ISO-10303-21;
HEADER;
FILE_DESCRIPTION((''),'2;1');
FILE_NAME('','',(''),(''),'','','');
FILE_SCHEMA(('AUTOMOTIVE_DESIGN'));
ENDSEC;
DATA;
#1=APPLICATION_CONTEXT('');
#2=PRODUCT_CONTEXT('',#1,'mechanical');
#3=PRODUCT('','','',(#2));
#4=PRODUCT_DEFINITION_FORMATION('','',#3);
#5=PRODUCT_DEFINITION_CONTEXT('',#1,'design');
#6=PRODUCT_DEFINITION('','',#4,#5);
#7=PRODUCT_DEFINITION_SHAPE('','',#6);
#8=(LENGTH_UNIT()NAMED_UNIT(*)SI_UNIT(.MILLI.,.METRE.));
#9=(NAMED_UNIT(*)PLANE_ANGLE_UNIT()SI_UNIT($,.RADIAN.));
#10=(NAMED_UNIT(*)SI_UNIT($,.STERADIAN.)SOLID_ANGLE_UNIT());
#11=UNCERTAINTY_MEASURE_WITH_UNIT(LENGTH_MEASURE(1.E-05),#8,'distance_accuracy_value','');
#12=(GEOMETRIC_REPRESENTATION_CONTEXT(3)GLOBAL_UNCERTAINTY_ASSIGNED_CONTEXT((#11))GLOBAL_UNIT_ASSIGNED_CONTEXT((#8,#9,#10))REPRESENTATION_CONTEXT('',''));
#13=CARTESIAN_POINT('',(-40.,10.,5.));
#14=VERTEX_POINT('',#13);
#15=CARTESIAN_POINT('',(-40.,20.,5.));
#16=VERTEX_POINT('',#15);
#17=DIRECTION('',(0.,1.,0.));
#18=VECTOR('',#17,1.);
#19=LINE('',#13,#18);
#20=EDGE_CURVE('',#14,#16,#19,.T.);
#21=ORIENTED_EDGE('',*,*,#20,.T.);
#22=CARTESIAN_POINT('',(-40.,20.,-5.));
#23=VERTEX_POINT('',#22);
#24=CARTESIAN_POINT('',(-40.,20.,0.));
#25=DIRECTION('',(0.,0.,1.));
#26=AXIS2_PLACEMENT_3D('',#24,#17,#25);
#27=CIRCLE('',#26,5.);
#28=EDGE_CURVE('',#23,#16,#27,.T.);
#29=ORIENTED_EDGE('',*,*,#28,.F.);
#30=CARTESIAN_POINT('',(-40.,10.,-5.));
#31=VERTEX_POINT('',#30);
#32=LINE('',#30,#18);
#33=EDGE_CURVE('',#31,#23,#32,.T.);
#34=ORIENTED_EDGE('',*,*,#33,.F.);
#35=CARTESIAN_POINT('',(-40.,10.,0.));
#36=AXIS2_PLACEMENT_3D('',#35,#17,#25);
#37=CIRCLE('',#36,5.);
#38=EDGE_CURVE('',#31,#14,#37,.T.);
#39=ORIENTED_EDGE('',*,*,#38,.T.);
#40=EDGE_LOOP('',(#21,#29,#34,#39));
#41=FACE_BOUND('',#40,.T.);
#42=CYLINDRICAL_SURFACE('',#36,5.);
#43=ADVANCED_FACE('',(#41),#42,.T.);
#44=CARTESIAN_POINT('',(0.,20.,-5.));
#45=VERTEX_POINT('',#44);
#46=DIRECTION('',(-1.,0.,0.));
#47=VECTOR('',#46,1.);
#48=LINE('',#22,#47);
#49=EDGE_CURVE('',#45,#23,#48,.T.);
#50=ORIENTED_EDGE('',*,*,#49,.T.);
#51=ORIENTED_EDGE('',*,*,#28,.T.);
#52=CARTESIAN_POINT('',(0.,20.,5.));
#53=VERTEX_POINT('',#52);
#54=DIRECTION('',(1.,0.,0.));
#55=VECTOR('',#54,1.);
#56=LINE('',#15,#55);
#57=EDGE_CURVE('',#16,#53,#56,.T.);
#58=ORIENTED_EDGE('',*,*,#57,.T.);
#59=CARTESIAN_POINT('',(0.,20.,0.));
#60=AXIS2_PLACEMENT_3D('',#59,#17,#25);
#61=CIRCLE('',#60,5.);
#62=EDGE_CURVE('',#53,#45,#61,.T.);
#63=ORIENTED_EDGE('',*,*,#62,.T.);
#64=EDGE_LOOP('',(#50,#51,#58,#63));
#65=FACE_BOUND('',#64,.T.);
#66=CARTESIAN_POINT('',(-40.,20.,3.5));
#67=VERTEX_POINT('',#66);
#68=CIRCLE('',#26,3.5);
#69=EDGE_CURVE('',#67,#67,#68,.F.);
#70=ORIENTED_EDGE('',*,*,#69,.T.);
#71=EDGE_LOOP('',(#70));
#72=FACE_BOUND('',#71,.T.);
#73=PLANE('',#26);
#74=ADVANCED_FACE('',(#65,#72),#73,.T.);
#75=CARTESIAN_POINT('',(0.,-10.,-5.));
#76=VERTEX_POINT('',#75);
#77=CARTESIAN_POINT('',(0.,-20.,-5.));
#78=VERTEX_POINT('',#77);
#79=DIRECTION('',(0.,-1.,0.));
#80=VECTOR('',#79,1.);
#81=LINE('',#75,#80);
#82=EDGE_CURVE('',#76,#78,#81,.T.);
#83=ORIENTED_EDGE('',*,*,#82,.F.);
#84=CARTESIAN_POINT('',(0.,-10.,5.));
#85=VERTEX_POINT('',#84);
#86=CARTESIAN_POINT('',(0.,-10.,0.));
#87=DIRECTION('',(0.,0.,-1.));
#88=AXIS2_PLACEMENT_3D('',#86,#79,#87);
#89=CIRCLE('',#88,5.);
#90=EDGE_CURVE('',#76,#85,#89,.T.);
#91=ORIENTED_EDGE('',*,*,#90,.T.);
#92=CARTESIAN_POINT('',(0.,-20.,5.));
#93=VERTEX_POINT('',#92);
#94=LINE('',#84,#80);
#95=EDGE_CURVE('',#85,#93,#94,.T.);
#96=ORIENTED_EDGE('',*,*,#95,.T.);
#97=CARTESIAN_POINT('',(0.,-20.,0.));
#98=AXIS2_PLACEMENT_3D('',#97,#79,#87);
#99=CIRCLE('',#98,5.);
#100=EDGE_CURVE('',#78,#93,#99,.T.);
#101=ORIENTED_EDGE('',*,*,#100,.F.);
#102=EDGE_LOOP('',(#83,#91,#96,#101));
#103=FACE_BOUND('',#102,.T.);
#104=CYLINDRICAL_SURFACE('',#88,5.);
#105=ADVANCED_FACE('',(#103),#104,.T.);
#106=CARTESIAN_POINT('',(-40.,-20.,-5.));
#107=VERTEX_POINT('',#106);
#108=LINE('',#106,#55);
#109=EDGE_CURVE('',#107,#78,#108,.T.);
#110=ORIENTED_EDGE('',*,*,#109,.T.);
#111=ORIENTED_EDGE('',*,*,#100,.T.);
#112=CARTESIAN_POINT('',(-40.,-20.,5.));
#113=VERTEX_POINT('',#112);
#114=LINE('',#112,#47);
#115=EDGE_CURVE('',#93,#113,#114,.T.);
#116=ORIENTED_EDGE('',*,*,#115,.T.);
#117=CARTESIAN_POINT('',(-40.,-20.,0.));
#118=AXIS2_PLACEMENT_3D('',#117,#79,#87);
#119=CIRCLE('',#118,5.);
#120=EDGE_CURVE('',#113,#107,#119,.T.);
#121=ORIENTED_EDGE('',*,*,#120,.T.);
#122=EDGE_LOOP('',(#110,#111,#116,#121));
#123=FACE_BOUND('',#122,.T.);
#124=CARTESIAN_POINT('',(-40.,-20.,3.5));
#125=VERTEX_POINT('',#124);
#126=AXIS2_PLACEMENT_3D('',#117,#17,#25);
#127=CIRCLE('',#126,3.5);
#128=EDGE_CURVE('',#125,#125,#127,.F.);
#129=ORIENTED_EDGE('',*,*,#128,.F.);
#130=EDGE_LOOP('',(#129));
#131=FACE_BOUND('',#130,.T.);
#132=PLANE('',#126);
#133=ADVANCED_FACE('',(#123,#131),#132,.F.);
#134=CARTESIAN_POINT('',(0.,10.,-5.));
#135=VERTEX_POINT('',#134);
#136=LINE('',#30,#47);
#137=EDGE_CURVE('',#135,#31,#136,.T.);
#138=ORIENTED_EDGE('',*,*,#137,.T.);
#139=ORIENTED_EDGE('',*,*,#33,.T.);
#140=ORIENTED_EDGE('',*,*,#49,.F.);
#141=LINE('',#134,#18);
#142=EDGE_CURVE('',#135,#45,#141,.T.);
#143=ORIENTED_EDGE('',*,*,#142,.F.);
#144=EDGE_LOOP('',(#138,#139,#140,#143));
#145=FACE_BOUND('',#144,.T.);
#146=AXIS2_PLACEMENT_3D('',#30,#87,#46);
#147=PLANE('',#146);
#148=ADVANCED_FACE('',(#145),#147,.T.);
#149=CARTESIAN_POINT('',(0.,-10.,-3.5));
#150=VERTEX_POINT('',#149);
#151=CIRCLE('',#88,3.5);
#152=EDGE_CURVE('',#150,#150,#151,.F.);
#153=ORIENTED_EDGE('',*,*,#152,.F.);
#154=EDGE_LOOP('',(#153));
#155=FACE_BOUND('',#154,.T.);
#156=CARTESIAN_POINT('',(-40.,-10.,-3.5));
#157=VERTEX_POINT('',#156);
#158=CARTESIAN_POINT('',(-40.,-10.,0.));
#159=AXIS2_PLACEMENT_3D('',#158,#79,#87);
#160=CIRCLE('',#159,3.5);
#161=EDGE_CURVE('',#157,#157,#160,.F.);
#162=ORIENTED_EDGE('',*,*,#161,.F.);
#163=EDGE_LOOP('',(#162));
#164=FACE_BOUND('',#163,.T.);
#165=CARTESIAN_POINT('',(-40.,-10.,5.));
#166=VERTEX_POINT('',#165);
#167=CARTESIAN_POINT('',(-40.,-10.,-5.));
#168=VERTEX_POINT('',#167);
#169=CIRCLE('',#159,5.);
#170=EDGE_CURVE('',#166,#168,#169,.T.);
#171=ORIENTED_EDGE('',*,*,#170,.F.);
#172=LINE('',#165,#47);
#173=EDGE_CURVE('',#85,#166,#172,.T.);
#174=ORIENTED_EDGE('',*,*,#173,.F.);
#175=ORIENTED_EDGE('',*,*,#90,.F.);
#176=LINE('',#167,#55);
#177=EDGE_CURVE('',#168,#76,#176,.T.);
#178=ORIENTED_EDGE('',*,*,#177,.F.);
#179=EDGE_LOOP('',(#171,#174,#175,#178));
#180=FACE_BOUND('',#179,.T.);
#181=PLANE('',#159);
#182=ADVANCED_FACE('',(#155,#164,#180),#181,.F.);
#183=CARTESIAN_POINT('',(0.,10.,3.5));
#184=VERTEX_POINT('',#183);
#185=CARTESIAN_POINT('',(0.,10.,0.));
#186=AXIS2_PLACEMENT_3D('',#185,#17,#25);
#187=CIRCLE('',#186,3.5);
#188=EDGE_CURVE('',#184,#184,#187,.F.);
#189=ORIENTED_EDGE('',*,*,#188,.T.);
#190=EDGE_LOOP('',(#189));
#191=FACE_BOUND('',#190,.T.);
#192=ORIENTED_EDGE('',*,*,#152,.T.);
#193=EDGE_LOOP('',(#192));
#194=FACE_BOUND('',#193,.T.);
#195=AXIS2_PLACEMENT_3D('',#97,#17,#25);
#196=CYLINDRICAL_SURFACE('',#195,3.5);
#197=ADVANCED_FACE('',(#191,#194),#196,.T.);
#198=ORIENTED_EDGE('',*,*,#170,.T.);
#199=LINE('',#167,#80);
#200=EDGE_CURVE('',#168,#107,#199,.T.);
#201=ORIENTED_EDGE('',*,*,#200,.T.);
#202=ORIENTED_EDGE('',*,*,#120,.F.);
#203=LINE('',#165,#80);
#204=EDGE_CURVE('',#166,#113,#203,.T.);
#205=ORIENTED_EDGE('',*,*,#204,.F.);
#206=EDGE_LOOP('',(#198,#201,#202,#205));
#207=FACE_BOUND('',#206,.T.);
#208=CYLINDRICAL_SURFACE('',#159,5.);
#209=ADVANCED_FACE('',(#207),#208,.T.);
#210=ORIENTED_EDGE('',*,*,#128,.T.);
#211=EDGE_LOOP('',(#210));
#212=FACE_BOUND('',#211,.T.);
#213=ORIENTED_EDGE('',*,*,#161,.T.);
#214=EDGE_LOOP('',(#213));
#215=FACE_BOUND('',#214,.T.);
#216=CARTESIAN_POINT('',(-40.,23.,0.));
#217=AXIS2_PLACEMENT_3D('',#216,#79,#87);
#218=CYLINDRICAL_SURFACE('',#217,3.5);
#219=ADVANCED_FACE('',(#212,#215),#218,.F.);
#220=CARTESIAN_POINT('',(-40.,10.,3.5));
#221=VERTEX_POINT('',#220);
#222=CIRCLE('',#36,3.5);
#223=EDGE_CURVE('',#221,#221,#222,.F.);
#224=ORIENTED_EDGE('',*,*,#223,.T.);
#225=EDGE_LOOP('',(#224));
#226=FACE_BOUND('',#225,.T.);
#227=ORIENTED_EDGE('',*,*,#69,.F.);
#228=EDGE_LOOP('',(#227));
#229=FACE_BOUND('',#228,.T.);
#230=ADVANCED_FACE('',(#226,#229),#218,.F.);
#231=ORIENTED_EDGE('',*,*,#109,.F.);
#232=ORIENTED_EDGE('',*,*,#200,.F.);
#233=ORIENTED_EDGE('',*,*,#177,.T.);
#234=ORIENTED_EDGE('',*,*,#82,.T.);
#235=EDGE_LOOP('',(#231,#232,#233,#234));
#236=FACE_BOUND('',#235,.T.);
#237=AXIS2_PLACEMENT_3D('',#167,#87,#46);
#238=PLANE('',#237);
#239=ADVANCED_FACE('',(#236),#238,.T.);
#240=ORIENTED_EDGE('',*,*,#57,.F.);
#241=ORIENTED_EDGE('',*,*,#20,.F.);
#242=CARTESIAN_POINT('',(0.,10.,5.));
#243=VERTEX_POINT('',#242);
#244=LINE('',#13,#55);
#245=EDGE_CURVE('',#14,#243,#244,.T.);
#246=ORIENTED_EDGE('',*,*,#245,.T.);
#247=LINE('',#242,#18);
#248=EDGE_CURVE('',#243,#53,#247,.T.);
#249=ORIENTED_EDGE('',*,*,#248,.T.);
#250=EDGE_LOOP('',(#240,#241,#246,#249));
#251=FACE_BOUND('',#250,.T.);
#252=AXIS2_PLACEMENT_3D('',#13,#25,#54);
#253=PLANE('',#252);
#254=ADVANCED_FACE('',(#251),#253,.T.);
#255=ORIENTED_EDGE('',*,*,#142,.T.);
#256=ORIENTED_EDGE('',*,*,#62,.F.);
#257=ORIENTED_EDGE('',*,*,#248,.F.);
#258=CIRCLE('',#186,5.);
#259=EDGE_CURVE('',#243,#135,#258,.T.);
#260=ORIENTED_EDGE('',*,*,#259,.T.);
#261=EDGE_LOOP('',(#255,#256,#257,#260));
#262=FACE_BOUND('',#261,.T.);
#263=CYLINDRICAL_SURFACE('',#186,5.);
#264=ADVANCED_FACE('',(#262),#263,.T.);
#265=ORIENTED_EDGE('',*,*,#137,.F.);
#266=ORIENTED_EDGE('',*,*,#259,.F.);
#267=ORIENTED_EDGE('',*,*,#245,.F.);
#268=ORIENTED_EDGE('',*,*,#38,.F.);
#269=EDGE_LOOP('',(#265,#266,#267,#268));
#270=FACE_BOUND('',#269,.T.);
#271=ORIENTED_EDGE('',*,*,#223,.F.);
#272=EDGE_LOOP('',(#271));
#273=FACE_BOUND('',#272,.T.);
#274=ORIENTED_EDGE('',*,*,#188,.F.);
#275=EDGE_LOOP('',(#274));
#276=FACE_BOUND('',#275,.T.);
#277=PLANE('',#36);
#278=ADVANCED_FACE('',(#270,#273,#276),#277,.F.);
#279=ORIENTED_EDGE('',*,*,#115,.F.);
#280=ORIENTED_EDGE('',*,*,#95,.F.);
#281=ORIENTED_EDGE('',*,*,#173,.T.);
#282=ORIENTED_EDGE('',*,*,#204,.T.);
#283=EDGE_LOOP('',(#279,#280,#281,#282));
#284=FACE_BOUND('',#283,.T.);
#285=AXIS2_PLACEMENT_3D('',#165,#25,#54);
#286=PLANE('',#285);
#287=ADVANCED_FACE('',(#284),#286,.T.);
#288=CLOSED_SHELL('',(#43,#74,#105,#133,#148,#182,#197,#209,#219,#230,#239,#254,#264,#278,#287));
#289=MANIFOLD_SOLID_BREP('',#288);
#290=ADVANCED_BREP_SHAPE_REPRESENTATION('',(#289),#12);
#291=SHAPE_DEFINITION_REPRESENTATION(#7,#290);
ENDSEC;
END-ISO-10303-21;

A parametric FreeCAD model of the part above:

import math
import FreeCAD as App
import Part
import Sketcher

V = App.Vector
Q = App.Units.Quantity

doc = App.newDocument("Part")
body = doc.addObject("PartDesign::Body", "Body")

sketch1 = body.newObject("Sketcher::SketchObject", "Sketch")
sketch1.AttachmentSupport = (doc.getObject("XZ_Plane"), [""])
sketch1.MapMode = "FlatFace"
sketch1.addGeometry(Part.Circle(V(-40, 0, 0), V(0, 0, 1), 3.5), False)
sketch1.addConstraint([
    Sketcher.Constraint("PointOnObject", 0, 3, -1),
    Sketcher.Constraint("Diameter", 0, Q("7 mm")),
    Sketcher.Constraint("DistanceX", 0, 3, -1, 1, Q("40 mm")),
])
pad1 = body.newObject("PartDesign::Pad", "Pad")
pad1.Profile = sketch1
pad1.Type = "TwoLengths"
pad1.Length = 20
pad1.Length2 = 20
pad1.Reversed = True

sketch2 = body.newObject("Sketcher::SketchObject", "Sketch001")
sketch2.AttachmentSupport = (doc.getObject("XZ_Plane"), [""])
sketch2.MapMode = "FlatFace"
sketch2.AttachmentOffset = App.Placement(V(0, 0, -20), App.Rotation())
sketch2.addGeometry([
    Part.LineSegment(V(0, -5, 0), V(-40, -5, 0)),
    Part.ArcOfCircle(Part.Circle(V(-40, 0, 0), V(0, 0, 1), 5), math.radians(90), math.radians(270)),
    Part.LineSegment(V(-40, 5, 0), V(0, 5, 0)),
    Part.ArcOfCircle(Part.Circle(V(0, 0, 0), V(0, 0, 1), 5), math.radians(-90), math.radians(90)),
], False)
sketch2.addConstraint([
    Sketcher.Constraint("Tangent", 0, 2, 1, 2),
    Sketcher.Constraint("Tangent", 1, 1, 2, 1),
    Sketcher.Constraint("Tangent", 2, 2, 3, 2),
    Sketcher.Constraint("Tangent", 3, 1, 0, 1),
    Sketcher.Constraint("Horizontal", 0),
    Sketcher.Constraint("Horizontal", 2),
    Sketcher.Constraint("Coincident", 3, 3, -1, 1),
    Sketcher.Constraint("Radius", 1, Q("5 mm")),
    Sketcher.Constraint("DistanceX", 0, 2, 0, 1, Q("40 mm")),
])
pad2 = body.newObject("PartDesign::Pad", "Pad001")
pad2.Profile = sketch2
pad2.Length = 10

sketch3 = body.newObject("Sketcher::SketchObject", "Sketch002")
sketch3.AttachmentSupport = (doc.getObject("XZ_Plane"), [""])
sketch3.MapMode = "FlatFace"
sketch3.AttachmentOffset = App.Placement(V(0, 0, 10), App.Rotation())
sketch3.addGeometry([
    Part.LineSegment(V(0, 5, 0), V(-40, 5, 0)),
    Part.ArcOfCircle(Part.Circle(V(-40, 0, 0), V(0, 0, 1), 5), math.radians(90), math.radians(270)),
    Part.LineSegment(V(-40, -5, 0), V(0, -5, 0)),
    Part.ArcOfCircle(Part.Circle(V(0, 0, 0), V(0, 0, 1), 5), math.radians(-90), math.radians(90)),
], False)
sketch3.addConstraint([
    Sketcher.Constraint("Tangent", 0, 2, 1, 1),
    Sketcher.Constraint("Tangent", 1, 2, 2, 1),
    Sketcher.Constraint("Tangent", 2, 2, 3, 1),
    Sketcher.Constraint("Tangent", 3, 2, 0, 1),
    Sketcher.Constraint("Horizontal", 0),
    Sketcher.Constraint("Horizontal", 2),
    Sketcher.Constraint("Coincident", 3, 3, -1, 1),
    Sketcher.Constraint("Radius", 1, Q("5 mm")),
    Sketcher.Constraint("DistanceX", 0, 2, 0, 1, Q("40 mm")),
])
pad3 = body.newObject("PartDesign::Pad", "Pad002")
pad3.Profile = sketch3
pad3.Length = 10

sketch4 = body.newObject("Sketcher::SketchObject", "Sketch003")
sketch4.AttachmentSupport = (doc.getObject("XZ_Plane"), [""])
sketch4.MapMode = "FlatFace"
sketch4.addGeometry(Part.Circle(V(0, 0, 0), V(0, 0, 1), 3.5), False)
sketch4.addConstraint([
    Sketcher.Constraint("Coincident", 0, 3, -1, 1),
    Sketcher.Constraint("Diameter", 0, Q("7 mm")),
])
pocket1 = body.newObject("PartDesign::Pocket", "Pocket")
pocket1.Profile = sketch4
pocket1.Type = "ThroughAll"
pocket1.Midplane = True

sketch5 = body.newObject("Sketcher::SketchObject", "Sketch004")
sketch5.AttachmentSupport = (doc.getObject("XZ_Plane"), [""])
sketch5.MapMode = "FlatFace"
sketch5.addGeometry(Part.Circle(V(0, 0, 0), V(0, 0, 1), 3.5), False)
sketch5.addConstraint([
    Sketcher.Constraint("Coincident", 0, 3, -1, 1),
    Sketcher.Constraint("Diameter", 0, Q("7 mm")),
])
pad4 = body.newObject("PartDesign::Pad", "Pad003")
pad4.Profile = sketch5
pad4.Type = "TwoLengths"
pad4.Length = 20
pad4.Length2 = 20
pad4.Reversed = True

sketch6 = body.newObject("Sketcher::SketchObject", "Sketch005")
sketch6.AttachmentSupport = (doc.getObject("XZ_Plane"), [""])
sketch6.MapMode = "FlatFace"
sketch6.addGeometry(Part.Circle(V(-40, 0, 0), V(0, 0, 1), 3.5), False)
sketch6.addConstraint([
    Sketcher.Constraint("PointOnObject", 0, 3, -1),
    Sketcher.Constraint("Diameter", 0, Q("7 mm")),
    Sketcher.Constraint("DistanceX", 0, 3, -1, 1, Q("40 mm")),
])
pocket2 = body.newObject("PartDesign::Pocket", "Pocket001")
pocket2.Profile = sketch6
pocket2.Type = "ThroughAll"
pocket2.Midplane = True

doc.recompute()
